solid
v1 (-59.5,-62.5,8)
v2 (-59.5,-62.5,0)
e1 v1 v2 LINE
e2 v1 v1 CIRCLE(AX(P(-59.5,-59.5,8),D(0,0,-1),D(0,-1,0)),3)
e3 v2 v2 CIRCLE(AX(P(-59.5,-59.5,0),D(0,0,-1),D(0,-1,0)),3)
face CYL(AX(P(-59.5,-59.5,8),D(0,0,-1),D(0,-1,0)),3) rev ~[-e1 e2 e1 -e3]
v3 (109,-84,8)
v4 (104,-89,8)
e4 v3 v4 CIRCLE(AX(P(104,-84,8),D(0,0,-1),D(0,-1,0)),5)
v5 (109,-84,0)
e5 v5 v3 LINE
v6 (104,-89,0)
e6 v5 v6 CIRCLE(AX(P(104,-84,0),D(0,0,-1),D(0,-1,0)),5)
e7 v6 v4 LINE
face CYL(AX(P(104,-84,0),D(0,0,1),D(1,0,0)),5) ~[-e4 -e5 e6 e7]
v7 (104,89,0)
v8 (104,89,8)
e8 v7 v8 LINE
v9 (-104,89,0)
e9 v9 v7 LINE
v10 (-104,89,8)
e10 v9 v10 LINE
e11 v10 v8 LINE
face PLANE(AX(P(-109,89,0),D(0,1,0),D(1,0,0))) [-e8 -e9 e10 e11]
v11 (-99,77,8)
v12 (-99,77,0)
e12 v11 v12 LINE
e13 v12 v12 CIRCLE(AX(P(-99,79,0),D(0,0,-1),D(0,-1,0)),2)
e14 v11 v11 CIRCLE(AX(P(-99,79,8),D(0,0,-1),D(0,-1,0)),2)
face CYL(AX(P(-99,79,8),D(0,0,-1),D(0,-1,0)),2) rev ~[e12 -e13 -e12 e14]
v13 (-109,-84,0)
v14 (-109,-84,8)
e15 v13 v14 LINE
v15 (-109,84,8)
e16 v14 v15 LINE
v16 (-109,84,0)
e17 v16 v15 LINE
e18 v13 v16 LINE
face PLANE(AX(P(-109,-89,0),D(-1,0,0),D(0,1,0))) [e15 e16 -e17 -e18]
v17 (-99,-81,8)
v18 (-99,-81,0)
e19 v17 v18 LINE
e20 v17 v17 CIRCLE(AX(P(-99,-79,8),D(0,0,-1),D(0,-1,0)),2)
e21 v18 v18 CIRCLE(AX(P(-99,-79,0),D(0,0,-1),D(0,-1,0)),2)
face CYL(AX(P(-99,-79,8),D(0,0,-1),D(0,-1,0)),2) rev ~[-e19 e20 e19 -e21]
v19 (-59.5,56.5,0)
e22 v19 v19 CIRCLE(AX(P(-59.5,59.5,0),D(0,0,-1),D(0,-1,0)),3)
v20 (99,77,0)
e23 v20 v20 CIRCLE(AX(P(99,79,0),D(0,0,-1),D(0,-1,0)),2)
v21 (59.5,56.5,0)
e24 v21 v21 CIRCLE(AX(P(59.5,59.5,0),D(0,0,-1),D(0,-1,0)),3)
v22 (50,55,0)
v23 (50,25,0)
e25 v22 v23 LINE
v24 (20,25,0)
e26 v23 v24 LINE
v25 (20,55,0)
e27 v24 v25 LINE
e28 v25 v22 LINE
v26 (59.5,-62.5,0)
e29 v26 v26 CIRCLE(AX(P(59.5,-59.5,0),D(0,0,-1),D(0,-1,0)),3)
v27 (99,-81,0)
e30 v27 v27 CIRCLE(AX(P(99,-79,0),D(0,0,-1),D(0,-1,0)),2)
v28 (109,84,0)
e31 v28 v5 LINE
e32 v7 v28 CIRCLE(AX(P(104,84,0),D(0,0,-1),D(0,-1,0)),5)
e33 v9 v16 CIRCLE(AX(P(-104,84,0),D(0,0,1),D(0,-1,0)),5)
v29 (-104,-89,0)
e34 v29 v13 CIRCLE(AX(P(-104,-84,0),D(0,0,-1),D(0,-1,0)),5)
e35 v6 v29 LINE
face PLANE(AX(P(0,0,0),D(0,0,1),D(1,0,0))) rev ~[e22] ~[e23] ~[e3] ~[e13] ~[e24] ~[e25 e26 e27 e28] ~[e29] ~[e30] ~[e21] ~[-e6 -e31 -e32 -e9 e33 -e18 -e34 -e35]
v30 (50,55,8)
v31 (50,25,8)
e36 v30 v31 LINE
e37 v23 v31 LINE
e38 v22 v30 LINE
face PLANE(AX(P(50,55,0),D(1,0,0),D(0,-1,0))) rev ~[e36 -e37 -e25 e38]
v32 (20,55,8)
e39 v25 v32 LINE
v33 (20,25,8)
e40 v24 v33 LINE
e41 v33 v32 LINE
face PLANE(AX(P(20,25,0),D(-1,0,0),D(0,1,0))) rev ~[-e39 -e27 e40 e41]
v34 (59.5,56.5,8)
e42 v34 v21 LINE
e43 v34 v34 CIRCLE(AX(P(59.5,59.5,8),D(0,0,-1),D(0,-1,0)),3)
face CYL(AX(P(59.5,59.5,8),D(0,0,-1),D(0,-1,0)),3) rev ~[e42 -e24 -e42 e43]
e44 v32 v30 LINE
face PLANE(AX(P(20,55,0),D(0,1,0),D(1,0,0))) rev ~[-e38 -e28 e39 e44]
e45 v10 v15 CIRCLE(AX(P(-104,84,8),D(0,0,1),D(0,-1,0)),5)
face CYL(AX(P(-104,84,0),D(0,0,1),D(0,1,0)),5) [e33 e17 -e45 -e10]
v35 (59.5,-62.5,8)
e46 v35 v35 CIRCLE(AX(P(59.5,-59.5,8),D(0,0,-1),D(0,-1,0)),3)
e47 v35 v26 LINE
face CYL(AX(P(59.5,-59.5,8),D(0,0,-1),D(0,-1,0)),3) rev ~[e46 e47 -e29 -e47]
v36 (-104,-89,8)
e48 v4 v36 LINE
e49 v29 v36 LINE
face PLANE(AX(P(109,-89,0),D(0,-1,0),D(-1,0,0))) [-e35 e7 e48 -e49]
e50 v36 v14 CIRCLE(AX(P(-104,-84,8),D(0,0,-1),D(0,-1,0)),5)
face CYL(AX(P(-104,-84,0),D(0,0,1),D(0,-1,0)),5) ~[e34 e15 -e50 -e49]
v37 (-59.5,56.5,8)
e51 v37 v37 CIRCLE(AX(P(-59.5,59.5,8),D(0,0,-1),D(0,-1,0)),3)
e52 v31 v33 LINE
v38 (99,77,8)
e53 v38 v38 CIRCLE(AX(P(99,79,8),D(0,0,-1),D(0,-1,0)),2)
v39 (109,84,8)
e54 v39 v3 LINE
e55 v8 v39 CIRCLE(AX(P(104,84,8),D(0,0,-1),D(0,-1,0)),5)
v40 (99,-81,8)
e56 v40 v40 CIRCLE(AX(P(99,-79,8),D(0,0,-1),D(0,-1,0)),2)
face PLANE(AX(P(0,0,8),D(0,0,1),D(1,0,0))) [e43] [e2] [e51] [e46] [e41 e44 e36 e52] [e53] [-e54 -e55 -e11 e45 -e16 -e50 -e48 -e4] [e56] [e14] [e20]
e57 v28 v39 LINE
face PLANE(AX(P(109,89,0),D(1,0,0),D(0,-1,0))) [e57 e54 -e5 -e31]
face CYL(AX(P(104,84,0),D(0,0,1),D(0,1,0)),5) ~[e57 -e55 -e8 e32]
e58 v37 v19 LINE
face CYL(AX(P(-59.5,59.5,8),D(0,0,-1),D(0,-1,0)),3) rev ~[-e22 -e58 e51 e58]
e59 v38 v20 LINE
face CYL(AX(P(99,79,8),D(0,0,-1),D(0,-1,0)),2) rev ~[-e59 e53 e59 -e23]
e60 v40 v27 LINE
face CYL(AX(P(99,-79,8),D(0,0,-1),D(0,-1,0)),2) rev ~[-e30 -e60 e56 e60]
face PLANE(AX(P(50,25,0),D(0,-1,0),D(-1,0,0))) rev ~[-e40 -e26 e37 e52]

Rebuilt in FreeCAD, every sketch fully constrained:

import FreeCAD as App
import Part
import Sketcher
Q = App.Units.Quantity


def edges_at(feature, points):
    """Names of the edges that pass closest to the given points."""
    edges = feature.Shape.Edges
    near = lambda p: min(range(len(edges)), key=lambda i: edges[i].distToShape(Part.Vertex(*p))[0])
    return sorted({f"Edge{near(p) + 1}" for p in points})


def add_polygon(sketch, points):
    """Adds a closed chain of lines whose ends are joined by coincident constraints."""
    first, n = sketch.GeometryCount, len(points)
    for a, b in zip(points, points[1:] + points[:1]):
        sketch.addGeometry(Part.LineSegment(App.Vector(*a, 0), App.Vector(*b, 0)), False)
    for i in range(n):
        sketch.addConstraint(Sketcher.Constraint("Coincident", first + i, 2, first + (i + 1) % n, 1))

doc = App.newDocument("Part")
body = doc.addObject("PartDesign::Body", "Body")

# Sketch on XY plane
sketch1 = doc.addObject("Sketcher::SketchObject", "Sketch")
body.addObject(sketch1)
sketch1.AttachmentSupport = (doc.XY_Plane, [""])
sketch1.MapMode = "FlatFace"
add_polygon(sketch1, [(109, 89), (-109, 89), (-109, -89), (109, -89)])  # lines 0-3
add_polygon(sketch1, [(20, 25), (20, 55), (50, 55), (50, 25)])  # lines 4-7
sketch1.addConstraint(Sketcher.Constraint("Horizontal", 0))
sketch1.addConstraint(Sketcher.Constraint("Vertical", 1))
sketch1.addConstraint(Sketcher.Constraint("Horizontal", 2))
sketch1.addConstraint(Sketcher.Constraint("Vertical", 3))
sketch1.addConstraint(Sketcher.Constraint("Vertical", 4))
sketch1.addConstraint(Sketcher.Constraint("Horizontal", 5))
sketch1.addConstraint(Sketcher.Constraint("Vertical", 6))
sketch1.addConstraint(Sketcher.Constraint("Horizontal", 7))
sketch1.addConstraint(Sketcher.Constraint("Symmetric", 0, 2, 2, 2, -1, 1))
sketch1.addConstraint(Sketcher.Constraint("Equal", 7, 4))
sketch1.addConstraint(Sketcher.Constraint("DistanceX", 0, 2, 0, 1, Q("218 mm")))
sketch1.addConstraint(Sketcher.Constraint("DistanceX", 5, 1, 5, 2, Q("30 mm")))
sketch1.addConstraint(Sketcher.Constraint("DistanceY", 1, 2, 1, 1, Q("178 mm")))
sketch1.addConstraint(Sketcher.Constraint("DistanceX", -1, 1, 4, 2, Q("20 mm")))
sketch1.addConstraint(Sketcher.Constraint("DistanceY", -1, 1, 6, 2, Q("25 mm")))
pad1 = doc.addObject("PartDesign::Pad", "Pad")
body.addObject(pad1)
pad1.Profile = sketch1
pad1.Length = 8
doc.recompute()

fillet = doc.addObject("PartDesign::Fillet", "Fillet")
body.addObject(fillet)
fillet.Base = (pad1, edges_at(pad1, [
    (-109, -89, 4),
    (109, -89, 4),
    (109, 89, 4),
    (-109, 89, 4),
]))
fillet.Radius = 5

# Sketch on XY plane
sketch2 = doc.addObject("Sketcher::SketchObject", "Sketch001")
body.addObject(sketch2)
sketch2.AttachmentSupport = (doc.XY_Plane, [""])
sketch2.MapMode = "FlatFace"
sketch2.AttachmentOffset = App.Placement(App.Vector(0, 0, 8), App.Rotation())
sketch2.addGeometry(Part.Circle(App.Vector(-99, 79, 0), App.Vector(0, 0, 1), 2), False)
sketch2.addGeometry(Part.Circle(App.Vector(99, 79, 0), App.Vector(0, 0, 1), 2), False)
sketch2.addGeometry(Part.Circle(App.Vector(99, -79, 0), App.Vector(0, 0, 1), 2), False)
sketch2.addGeometry(Part.Circle(App.Vector(-99, -79, 0), App.Vector(0, 0, 1), 2), False)
sketch2.addConstraint(Sketcher.Constraint("Equal", 0, 1))
sketch2.addConstraint(Sketcher.Constraint("Equal", 1, 2))
sketch2.addConstraint(Sketcher.Constraint("Equal", 2, 3))
sketch2.addConstraint(Sketcher.Constraint("Symmetric", 0, 3, 2, 3, -1, 1))
sketch2.addConstraint(Sketcher.Constraint("Symmetric", 1, 3, 3, 3, -1, 1))
sketch2.addConstraint(Sketcher.Constraint("Symmetric", 0, 3, 1, 3, -2))
sketch2.addConstraint(Sketcher.Constraint("Diameter", 0, Q("4 mm")))
sketch2.addConstraint(Sketcher.Constraint("DistanceX", 0, 3, -1, 1, Q("99 mm")))
sketch2.addConstraint(Sketcher.Constraint("DistanceY", -1, 1, 0, 3, Q("79 mm")))
doc.recompute()
hole = doc.addObject("PartDesign::Hole", "Hole")
body.addObject(hole)
hole.Profile = sketch2
hole.ThreadType = "None"
hole.Diameter = 4
hole.DepthType = "ThroughAll"

# Sketch on XY plane
sketch3 = doc.addObject("Sketcher::SketchObject", "Sketch002")
body.addObject(sketch3)
sketch3.AttachmentSupport = (doc.XY_Plane, [""])
sketch3.MapMode = "FlatFace"
sketch3.AttachmentOffset = App.Placement(App.Vector(0, 0, 8), App.Rotation())
sketch3.addGeometry(Part.Circle(App.Vector(-59.5, 59.5, 0), App.Vector(0, 0, 1), 3), False)
sketch3.addGeometry(Part.Circle(App.Vector(59.5, 59.5, 0), App.Vector(0, 0, 1), 3), False)
sketch3.addGeometry(Part.Circle(App.Vector(59.5, -59.5, 0), App.Vector(0, 0, 1), 3), False)
sketch3.addGeometry(Part.Circle(App.Vector(-59.5, -59.5, 0), App.Vector(0, 0, 1), 3), False)
sketch3.addConstraint(Sketcher.Constraint("Equal", 0, 1))
sketch3.addConstraint(Sketcher.Constraint("Equal", 1, 2))
sketch3.addConstraint(Sketcher.Constraint("Equal", 2, 3))
sketch3.addConstraint(Sketcher.Constraint("Symmetric", 0, 3, 2, 3, -1, 1))
sketch3.addConstraint(Sketcher.Constraint("Symmetric", 1, 3, 3, 3, -1, 1))
sketch3.addConstraint(Sketcher.Constraint("Symmetric", 0, 3, 1, 3, -2))
sketch3.addConstraint(Sketcher.Constraint("Diameter", 0, Q("6 mm")))
sketch3.addConstraint(Sketcher.Constraint("DistanceX", 0, 3, 1, 3, Q("119 mm")))
sketch3.addConstraint(Sketcher.Constraint("DistanceY", 2, 3, 1, 3, Q("119 mm")))
doc.recompute()
hole2 = doc.addObject("PartDesign::Hole", "Hole001")
body.addObject(hole2)
hole2.Profile = sketch3
hole2.ThreadType = "None"
hole2.Diameter = 6
hole2.DepthType = "ThroughAll"

doc.recompute()
